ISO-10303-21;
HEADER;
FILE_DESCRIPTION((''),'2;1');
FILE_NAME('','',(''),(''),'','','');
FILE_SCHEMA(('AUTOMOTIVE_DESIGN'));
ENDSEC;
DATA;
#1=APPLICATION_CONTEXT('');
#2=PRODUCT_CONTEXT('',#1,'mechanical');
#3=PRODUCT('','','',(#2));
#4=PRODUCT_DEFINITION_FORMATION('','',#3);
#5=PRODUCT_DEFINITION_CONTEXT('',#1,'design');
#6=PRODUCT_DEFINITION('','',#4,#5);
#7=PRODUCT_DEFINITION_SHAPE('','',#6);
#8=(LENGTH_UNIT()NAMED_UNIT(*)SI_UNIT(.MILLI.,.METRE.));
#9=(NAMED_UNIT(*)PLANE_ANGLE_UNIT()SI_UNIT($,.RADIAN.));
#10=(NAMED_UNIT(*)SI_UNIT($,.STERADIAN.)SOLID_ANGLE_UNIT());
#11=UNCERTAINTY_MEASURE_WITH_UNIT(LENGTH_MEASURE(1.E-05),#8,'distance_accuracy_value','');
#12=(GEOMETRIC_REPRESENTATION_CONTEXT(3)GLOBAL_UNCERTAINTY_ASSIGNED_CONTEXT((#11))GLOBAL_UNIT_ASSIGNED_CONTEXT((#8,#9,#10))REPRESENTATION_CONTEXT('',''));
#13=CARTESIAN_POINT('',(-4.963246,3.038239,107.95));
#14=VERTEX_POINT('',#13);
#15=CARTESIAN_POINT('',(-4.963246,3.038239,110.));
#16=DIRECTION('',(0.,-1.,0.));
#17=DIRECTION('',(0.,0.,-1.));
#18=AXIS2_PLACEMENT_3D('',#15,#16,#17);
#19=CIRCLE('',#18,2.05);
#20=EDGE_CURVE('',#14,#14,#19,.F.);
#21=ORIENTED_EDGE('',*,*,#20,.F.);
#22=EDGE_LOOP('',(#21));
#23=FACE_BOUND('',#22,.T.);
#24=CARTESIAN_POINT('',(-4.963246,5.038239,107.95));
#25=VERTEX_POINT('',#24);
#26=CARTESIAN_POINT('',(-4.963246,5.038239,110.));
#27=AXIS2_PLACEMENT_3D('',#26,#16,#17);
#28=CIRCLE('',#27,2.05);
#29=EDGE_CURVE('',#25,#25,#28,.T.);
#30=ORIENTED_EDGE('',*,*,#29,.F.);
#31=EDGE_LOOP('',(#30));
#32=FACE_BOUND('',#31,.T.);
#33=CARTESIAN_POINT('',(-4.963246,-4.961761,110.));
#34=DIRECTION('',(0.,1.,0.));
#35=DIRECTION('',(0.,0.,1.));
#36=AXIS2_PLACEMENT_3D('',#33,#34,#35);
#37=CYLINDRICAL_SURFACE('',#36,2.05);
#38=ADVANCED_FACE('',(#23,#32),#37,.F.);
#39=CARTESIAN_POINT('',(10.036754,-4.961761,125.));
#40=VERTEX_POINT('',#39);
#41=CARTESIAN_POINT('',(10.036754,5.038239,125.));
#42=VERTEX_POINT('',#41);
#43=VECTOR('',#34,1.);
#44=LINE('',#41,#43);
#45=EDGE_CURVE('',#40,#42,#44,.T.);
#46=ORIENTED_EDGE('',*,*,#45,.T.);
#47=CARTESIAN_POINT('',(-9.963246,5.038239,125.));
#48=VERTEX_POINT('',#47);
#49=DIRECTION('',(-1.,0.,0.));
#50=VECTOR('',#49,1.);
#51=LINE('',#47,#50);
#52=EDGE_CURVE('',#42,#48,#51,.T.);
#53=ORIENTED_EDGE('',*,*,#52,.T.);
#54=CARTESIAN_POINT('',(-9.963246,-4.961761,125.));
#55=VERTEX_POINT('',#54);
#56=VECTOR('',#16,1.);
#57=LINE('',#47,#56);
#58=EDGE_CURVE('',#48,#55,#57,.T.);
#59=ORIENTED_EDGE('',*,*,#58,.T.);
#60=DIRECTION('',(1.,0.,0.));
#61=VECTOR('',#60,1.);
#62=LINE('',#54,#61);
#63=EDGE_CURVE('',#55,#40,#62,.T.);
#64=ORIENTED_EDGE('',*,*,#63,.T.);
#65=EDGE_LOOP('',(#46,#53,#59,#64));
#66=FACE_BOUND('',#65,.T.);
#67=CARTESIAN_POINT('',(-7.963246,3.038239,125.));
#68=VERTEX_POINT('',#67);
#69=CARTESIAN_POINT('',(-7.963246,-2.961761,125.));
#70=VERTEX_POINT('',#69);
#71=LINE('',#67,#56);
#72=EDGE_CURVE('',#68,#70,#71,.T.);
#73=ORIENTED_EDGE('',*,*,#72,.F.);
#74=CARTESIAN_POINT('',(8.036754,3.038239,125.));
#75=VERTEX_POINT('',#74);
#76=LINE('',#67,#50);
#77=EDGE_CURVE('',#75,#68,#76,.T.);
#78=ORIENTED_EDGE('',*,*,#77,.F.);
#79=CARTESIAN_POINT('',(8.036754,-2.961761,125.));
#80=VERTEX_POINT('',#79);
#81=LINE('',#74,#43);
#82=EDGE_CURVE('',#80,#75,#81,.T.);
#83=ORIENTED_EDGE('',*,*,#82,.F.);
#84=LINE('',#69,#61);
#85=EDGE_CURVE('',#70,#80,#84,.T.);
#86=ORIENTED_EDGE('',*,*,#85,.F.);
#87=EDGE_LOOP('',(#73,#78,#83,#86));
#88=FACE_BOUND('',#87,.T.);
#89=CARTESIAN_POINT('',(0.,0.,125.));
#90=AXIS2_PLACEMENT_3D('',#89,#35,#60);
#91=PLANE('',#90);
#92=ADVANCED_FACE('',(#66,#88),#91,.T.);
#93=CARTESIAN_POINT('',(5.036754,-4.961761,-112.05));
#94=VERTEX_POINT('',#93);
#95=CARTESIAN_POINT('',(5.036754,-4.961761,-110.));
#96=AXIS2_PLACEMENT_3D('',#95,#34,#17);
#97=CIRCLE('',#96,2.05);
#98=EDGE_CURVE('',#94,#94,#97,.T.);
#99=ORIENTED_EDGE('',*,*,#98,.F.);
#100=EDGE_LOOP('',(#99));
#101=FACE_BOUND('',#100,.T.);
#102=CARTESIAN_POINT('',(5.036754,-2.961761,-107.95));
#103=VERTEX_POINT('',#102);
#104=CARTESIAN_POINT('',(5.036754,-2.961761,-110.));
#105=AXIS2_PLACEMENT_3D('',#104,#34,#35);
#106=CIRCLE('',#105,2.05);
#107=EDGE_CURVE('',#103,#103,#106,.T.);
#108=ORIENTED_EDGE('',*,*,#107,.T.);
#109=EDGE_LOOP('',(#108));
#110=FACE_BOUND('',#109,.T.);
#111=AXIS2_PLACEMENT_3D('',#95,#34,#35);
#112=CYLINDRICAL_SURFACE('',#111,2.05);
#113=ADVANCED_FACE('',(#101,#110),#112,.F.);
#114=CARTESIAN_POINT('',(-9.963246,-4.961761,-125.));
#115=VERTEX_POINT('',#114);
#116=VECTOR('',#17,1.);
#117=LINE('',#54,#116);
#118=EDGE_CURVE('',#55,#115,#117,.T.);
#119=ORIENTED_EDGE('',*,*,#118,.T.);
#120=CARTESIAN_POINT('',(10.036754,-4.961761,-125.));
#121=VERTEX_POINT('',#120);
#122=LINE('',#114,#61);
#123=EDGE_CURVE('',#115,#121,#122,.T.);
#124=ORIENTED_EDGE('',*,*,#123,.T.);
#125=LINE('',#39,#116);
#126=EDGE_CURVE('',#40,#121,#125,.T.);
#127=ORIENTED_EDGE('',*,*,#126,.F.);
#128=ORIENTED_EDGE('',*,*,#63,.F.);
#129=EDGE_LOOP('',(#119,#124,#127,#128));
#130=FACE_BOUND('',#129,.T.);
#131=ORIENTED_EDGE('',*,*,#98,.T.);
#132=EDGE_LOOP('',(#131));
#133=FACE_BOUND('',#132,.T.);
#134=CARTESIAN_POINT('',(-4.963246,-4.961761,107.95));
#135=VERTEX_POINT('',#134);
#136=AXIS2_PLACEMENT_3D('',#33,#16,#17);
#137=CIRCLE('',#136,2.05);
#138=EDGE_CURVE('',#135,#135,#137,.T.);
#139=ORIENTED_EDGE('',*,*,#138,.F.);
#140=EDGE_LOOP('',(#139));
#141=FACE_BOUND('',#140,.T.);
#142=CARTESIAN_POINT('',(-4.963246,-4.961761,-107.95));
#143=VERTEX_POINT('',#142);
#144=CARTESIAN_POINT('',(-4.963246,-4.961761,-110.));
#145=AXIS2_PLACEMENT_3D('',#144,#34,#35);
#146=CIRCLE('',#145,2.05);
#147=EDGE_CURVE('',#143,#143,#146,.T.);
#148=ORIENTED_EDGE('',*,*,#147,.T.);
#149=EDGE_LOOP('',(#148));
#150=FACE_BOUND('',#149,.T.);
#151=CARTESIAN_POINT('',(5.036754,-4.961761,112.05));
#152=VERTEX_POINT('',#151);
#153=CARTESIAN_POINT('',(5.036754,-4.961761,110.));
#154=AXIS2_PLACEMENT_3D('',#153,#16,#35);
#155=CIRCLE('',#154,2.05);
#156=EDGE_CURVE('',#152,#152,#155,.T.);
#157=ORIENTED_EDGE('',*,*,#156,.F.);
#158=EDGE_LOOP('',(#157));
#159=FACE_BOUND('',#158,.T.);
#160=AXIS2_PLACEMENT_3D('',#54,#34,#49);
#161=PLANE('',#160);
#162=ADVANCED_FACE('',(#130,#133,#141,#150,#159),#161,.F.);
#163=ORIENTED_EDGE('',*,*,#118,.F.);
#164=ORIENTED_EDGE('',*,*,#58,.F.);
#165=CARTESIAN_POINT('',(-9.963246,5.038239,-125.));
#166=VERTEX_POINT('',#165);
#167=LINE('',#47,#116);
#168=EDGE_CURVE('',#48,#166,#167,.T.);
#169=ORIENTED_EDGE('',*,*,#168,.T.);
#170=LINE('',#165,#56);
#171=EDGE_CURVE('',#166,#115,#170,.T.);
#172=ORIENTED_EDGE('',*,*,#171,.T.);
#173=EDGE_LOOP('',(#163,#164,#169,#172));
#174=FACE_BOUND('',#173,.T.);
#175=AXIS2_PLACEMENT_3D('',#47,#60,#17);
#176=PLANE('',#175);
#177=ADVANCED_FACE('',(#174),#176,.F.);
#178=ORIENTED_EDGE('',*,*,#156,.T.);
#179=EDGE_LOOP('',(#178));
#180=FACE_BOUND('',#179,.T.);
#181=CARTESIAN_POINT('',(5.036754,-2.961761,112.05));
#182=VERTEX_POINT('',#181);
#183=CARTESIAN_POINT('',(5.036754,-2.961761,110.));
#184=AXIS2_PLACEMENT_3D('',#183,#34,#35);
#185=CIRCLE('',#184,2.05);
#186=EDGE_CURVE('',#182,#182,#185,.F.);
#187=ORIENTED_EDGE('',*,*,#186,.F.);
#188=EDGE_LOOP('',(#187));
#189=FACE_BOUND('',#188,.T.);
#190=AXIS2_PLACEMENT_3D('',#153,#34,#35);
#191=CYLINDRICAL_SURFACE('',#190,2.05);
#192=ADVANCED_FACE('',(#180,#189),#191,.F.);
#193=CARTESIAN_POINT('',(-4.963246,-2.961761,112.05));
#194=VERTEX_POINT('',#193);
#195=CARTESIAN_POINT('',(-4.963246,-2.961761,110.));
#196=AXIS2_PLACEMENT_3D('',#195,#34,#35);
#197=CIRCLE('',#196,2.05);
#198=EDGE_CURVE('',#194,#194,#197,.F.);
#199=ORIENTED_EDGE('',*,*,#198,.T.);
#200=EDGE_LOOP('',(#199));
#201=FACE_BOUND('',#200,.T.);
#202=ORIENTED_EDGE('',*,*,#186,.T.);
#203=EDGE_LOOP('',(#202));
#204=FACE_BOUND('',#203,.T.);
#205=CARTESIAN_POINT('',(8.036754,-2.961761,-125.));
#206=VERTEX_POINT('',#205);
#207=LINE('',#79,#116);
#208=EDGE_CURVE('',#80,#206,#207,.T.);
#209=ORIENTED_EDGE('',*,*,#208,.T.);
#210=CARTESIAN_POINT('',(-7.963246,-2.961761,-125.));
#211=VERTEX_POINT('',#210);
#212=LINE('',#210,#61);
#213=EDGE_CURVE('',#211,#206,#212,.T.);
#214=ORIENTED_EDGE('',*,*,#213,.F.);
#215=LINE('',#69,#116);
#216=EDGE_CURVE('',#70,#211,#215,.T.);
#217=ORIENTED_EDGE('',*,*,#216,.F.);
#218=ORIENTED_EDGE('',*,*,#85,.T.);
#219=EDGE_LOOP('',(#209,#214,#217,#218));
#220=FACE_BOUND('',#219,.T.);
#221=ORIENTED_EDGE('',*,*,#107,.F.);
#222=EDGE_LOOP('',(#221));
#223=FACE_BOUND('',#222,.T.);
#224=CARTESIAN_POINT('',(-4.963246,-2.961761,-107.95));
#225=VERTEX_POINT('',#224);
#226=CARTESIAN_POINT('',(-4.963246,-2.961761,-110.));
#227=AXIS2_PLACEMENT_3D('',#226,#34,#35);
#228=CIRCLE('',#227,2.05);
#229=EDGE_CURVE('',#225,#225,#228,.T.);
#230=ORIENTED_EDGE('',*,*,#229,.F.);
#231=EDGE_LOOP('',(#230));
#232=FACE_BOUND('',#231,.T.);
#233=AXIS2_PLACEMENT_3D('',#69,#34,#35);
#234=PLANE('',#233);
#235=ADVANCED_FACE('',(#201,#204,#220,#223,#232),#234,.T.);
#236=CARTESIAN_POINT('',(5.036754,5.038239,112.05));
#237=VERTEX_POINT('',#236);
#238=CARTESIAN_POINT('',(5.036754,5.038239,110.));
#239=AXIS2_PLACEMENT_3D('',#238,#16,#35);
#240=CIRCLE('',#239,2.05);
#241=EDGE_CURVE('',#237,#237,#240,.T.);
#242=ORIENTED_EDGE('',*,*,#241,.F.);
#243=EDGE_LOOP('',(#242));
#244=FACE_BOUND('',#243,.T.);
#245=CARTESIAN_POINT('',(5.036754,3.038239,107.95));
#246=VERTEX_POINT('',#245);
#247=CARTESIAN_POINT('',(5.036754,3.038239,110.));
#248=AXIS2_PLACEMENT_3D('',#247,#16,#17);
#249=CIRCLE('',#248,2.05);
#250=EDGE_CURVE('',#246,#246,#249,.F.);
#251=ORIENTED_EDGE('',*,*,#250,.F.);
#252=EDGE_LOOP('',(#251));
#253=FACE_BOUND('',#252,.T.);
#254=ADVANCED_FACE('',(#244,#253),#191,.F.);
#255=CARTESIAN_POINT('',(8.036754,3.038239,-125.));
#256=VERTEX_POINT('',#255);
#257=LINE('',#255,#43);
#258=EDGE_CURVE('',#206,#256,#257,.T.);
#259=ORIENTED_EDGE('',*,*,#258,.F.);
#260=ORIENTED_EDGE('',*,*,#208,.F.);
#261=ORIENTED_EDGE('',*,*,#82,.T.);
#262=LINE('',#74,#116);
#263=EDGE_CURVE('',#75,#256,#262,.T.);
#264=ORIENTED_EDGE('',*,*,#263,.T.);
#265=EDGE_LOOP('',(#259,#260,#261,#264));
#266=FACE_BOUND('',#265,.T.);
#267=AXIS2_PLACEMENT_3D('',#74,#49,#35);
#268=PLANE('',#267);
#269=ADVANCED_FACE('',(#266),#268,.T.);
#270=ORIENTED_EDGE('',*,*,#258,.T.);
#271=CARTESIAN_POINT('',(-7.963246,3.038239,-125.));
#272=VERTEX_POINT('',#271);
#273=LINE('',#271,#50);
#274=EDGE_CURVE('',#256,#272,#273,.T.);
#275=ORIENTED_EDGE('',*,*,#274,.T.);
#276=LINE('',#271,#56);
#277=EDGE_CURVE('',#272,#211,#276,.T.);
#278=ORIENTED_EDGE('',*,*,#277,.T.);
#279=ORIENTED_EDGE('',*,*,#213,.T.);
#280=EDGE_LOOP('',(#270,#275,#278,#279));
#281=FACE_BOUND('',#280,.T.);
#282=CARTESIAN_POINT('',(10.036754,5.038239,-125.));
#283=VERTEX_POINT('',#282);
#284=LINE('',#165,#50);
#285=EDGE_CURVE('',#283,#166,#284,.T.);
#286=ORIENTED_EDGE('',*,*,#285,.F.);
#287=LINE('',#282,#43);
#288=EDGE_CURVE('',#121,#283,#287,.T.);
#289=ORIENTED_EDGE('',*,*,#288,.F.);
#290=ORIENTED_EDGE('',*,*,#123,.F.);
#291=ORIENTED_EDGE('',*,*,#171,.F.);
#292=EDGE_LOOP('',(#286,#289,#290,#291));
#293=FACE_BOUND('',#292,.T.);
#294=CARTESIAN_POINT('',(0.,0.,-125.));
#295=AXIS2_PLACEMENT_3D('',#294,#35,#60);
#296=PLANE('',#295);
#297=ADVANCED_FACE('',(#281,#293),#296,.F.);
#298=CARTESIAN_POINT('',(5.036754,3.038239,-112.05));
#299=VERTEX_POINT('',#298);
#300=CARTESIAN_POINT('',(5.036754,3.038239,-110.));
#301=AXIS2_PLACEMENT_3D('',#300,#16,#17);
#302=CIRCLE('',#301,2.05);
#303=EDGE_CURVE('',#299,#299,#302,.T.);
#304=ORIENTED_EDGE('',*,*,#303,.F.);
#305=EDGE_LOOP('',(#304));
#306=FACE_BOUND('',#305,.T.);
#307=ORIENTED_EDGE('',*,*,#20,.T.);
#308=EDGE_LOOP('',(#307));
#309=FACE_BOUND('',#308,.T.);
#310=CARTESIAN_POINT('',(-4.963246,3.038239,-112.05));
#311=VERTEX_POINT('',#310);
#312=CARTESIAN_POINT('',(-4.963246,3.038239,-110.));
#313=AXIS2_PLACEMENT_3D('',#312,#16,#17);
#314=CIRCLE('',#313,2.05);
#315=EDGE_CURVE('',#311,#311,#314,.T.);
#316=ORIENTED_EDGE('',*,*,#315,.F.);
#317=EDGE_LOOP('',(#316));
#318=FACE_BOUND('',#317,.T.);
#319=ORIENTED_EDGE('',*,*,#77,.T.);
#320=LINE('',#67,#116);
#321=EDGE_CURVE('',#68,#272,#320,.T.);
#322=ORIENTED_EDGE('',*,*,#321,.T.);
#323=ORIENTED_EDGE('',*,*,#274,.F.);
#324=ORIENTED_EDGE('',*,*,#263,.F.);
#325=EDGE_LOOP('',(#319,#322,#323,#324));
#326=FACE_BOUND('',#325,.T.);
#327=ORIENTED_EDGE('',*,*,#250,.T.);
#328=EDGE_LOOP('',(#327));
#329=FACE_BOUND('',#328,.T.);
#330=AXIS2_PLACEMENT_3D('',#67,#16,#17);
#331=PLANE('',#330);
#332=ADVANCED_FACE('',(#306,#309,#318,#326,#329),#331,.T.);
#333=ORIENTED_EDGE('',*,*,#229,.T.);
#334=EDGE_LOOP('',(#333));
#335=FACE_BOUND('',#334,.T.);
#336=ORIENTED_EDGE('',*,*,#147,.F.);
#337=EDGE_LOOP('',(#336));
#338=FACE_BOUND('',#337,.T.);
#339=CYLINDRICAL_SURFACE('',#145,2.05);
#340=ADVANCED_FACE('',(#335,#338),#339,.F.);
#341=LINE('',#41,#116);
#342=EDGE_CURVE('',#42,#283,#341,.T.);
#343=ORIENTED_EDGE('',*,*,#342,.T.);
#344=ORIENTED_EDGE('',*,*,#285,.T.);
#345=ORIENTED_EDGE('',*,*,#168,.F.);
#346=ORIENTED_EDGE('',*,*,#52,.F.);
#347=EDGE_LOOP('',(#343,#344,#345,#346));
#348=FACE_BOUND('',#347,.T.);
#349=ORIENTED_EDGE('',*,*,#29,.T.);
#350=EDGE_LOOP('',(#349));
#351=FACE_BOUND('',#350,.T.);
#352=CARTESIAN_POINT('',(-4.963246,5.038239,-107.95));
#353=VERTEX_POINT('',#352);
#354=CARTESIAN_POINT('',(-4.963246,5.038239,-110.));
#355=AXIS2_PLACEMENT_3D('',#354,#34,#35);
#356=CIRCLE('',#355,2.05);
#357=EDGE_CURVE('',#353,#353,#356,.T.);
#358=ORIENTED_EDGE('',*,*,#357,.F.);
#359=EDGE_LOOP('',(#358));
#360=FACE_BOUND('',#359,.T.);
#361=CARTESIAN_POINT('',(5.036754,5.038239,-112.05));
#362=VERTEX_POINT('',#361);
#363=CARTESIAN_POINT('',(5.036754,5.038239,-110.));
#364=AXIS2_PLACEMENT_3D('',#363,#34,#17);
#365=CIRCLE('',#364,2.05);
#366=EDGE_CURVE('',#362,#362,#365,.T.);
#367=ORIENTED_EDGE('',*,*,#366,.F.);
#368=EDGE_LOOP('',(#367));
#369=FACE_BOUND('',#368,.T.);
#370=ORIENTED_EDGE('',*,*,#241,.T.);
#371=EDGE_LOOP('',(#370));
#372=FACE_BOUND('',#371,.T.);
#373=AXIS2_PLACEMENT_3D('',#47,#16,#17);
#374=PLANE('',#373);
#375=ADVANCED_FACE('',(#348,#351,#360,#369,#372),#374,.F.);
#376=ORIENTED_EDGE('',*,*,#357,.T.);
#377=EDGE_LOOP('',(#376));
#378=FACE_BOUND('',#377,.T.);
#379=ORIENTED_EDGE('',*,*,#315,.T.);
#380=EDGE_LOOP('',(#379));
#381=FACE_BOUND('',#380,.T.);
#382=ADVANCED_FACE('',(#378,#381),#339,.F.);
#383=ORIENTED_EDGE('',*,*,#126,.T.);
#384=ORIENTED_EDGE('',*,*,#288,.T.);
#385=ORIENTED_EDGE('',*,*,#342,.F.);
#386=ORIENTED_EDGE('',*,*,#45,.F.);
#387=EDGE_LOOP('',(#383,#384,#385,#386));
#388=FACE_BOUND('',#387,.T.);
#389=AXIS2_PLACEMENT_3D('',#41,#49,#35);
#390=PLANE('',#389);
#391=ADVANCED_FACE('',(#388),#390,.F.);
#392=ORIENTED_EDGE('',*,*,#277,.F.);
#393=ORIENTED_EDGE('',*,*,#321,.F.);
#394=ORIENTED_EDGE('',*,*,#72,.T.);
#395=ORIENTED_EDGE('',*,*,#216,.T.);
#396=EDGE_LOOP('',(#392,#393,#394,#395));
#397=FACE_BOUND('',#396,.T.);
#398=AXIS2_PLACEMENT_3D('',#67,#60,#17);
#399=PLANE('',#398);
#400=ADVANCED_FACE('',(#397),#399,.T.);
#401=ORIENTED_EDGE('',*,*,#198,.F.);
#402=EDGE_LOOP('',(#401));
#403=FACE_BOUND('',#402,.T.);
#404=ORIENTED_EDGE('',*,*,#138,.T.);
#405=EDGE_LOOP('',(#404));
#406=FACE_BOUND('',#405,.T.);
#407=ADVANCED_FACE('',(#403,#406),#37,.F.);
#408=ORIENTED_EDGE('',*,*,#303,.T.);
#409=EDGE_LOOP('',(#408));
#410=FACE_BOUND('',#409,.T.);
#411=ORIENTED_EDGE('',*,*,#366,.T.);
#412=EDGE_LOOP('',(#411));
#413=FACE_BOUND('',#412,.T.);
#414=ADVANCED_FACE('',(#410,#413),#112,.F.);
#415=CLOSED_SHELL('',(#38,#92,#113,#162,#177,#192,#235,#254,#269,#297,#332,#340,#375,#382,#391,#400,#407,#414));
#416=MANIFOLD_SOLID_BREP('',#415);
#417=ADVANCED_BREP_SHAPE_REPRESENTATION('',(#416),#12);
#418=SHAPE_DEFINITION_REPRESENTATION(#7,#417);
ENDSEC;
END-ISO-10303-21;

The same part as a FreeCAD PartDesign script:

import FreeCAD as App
import Part
import Sketcher

V = App.Vector
Q = App.Units.Quantity

doc = App.newDocument("Part")
body = doc.addObject("PartDesign::Body", "Body")

sketch1 = body.newObject("Sketcher::SketchObject", "Sketch")
sketch1.AttachmentSupport = (doc.getObject("XY_Plane"), [""])
sketch1.MapMode = "FlatFace"
sketch1.addGeometry([
    Part.LineSegment(V(-10, 5, 0), V(-10, -5, 0)),
    Part.LineSegment(V(-10, -5, 0), V(10, -5, 0)),
    Part.LineSegment(V(10, -5, 0), V(10, 5, 0)),
    Part.LineSegment(V(10, 5, 0), V(-10, 5, 0)),
    Part.LineSegment(V(8, -3, 0), V(-8, -3, 0)),
    Part.LineSegment(V(-8, -3, 0), V(-8, 3, 0)),
    Part.LineSegment(V(-8, 3, 0), V(8, 3, 0)),
    Part.LineSegment(V(8, 3, 0), V(8, -3, 0)),
], False)
sketch1.addConstraint([
    Sketcher.Constraint("Coincident", 0, 2, 1, 1),
    Sketcher.Constraint("Coincident", 1, 2, 2, 1),
    Sketcher.Constraint("Coincident", 2, 2, 3, 1),
    Sketcher.Constraint("Coincident", 3, 2, 0, 1),
    Sketcher.Constraint("Coincident", 4, 2, 5, 1),
    Sketcher.Constraint("Coincident", 5, 2, 6, 1),
    Sketcher.Constraint("Coincident", 6, 2, 7, 1),
    Sketcher.Constraint("Coincident", 7, 2, 4, 1),
    Sketcher.Constraint("Vertical", 0),
    Sketcher.Constraint("Horizontal", 1),
    Sketcher.Constraint("Vertical", 2),
    Sketcher.Constraint("Horizontal", 3),
    Sketcher.Constraint("Horizontal", 4),
    Sketcher.Constraint("Vertical", 5),
    Sketcher.Constraint("Horizontal", 6),
    Sketcher.Constraint("Vertical", 7),
    Sketcher.Constraint("DistanceX", 1, 1, 1, 2, Q("20 mm")),
    Sketcher.Constraint("DistanceX", 4, 2, 4, 1, Q("16 mm")),
    Sketcher.Constraint("DistanceY", 0, 2, 0, 1, Q("10 mm")),
    Sketcher.Constraint("DistanceY", 5, 1, 5, 2, Q("6 mm")),
    Sketcher.Constraint("DistanceX", 0, 2, 4, 2, Q("2 mm")),
    Sketcher.Constraint("DistanceY", 0, 2, 4, 2, Q("2 mm")),
    Sketcher.Constraint("DistanceY", 0, 2, -1, 1, Q("4.961761 mm")),
    Sketcher.Constraint("DistanceX", 0, 2, -1, 1, Q("9.963246 mm")),
])
pad1 = body.newObject("PartDesign::Pad", "Pad")
pad1.Profile = sketch1
pad1.Length = 250
pad1.Midplane = True

sketch2 = body.newObject("Sketcher::SketchObject", "Sketch001")
sketch2.AttachmentSupport = (doc.getObject("XZ_Plane"), [""])
sketch2.MapMode = "FlatFace"
sketch2.AttachmentOffset = App.Placement(V(0, 0, -5.038239), App.Rotation())
sketch2.addGeometry([
    Part.Circle(V(-5, -110, 0), V(0, 0, 1), 2),
    Part.Circle(V(5, -110, 0), V(0, 0, 1), 2),
], False)
sketch2.addConstraint([
    Sketcher.Constraint("Equal", 0, 1),
    Sketcher.Constraint("Horizontal", 0, 3, 1, 3),
    Sketcher.Constraint("Diameter", 0, Q("4.1 mm")),
    Sketcher.Constraint("DistanceY", 0, 3, -1, 1, Q("110 mm")),
    Sketcher.Constraint("DistanceX", 0, 3, 1, 3, Q("10 mm")),
    Sketcher.Constraint("DistanceX", 0, 3, -1, 1, Q("4.963246 mm")),
])
pocket1 = body.newObject("PartDesign::Pocket", "Pocket")
pocket1.Profile = sketch2
pocket1.Type = "ThroughAll"
pocket1.Reversed = True
doc.recompute()

mirrored = body.newObject("PartDesign::Mirrored", "Mirrored")
mirrored.Originals = [pocket1]
mirrored.MirrorPlane = (doc.getObject("XY_Plane"), [""])
body.Tip = mirrored

doc.recompute()
